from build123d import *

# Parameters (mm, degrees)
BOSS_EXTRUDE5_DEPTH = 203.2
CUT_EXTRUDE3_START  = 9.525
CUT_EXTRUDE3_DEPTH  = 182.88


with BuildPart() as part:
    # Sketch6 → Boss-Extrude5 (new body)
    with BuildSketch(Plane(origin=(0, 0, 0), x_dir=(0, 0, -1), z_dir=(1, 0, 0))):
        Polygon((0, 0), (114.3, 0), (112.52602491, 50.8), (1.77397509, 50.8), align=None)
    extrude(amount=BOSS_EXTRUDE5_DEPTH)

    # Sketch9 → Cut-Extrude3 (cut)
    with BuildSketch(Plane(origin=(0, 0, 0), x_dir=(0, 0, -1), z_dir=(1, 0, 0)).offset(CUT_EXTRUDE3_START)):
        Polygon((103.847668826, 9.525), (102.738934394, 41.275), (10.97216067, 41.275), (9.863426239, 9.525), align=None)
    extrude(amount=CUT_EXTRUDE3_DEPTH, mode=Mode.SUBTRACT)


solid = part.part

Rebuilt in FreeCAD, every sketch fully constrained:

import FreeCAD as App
import Part
import Sketcher

V = App.Vector
Q = App.Units.Quantity


def add_polygon(sketch, points):
    """Adds a closed chain of lines whose ends are joined by coincident constraints."""
    first, n = sketch.GeometryCount, len(points)
    for a, b in zip(points, points[1:] + points[:1]):
        sketch.addGeometry(Part.LineSegment(App.Vector(*a, 0), App.Vector(*b, 0)), False)
    for i in range(n):
        sketch.addConstraint(Sketcher.Constraint("Coincident", first + i, 2, first + (i + 1) % n, 1))

doc = App.newDocument("Part")
body = doc.addObject("PartDesign::Body", "Body")

# Sketch on YZ plane
sketch1 = doc.addObject("Sketcher::SketchObject", "Sketch")
body.addObject(sketch1)
sketch1.AttachmentSupport = (doc.YZ_Plane, [""])
sketch1.MapMode = "FlatFace"
add_polygon(sketch1, [(0, 0), (0, -114), (51, -113), (51, -2)])  # lines 0-3
sketch1.addConstraint([
    Sketcher.Constraint("Vertical", 0),
    Sketcher.Constraint("Vertical", 2),
    Sketcher.Constraint("Coincident", 3, 2, -1, 1),
    Sketcher.Constraint("Equal", 1, 3),
    Sketcher.Constraint("DistanceY", 0, 2, 0, 1, Q("4.5 in")),
    Sketcher.Constraint("DistanceX", -1, 1, 1, 2, Q("2 in")),
    Sketcher.Constraint("Angle", 1, Q("2 deg")),
])
pad1 = doc.addObject("PartDesign::Pad", "Pad")
body.addObject(pad1)
pad1.Profile = sketch1
pad1.Length = Q("8 in")

# Sketch on YZ plane
sketch2 = doc.addObject("Sketcher::SketchObject", "Sketch001")
body.addObject(sketch2)
sketch2.AttachmentSupport = (doc.YZ_Plane, [""])
sketch2.MapMode = "FlatFace"
sketch2.AttachmentOffset = App.Placement(V(0, 0, 0.375 * 25.4), App.Rotation())
add_polygon(sketch2, [(10, -104), (41, -103), (41, -11), (10, -10)])  # lines 0-3
sketch2.addConstraint([
    Sketcher.Constraint("Vertical", 1),
    Sketcher.Constraint("Vertical", 3),
    Sketcher.Constraint("Equal", 0, 2),
    Sketcher.Constraint("Angle", 0, Q("2 deg")),
    Sketcher.Constraint("DistanceX", 2, 2, 1, 2, Q("1.25 in")),
    Sketcher.Constraint("DistanceX", -1, 1, 0, 2, Q("1.625 in")),
    Sketcher.Constraint("DistanceY", 1, 1, 1, 2, Q("91.766774 mm")),
    Sketcher.Constraint("DistanceY", 1, 2, -1, 1, Q("10.972161 mm")),
])
pocket1 = doc.addObject("PartDesign::Pocket", "Pocket")
body.addObject(pocket1)
pocket1.Profile = sketch2
pocket1.Length = Q("7.2 in")
pocket1.Reversed = True

doc.recompute()
